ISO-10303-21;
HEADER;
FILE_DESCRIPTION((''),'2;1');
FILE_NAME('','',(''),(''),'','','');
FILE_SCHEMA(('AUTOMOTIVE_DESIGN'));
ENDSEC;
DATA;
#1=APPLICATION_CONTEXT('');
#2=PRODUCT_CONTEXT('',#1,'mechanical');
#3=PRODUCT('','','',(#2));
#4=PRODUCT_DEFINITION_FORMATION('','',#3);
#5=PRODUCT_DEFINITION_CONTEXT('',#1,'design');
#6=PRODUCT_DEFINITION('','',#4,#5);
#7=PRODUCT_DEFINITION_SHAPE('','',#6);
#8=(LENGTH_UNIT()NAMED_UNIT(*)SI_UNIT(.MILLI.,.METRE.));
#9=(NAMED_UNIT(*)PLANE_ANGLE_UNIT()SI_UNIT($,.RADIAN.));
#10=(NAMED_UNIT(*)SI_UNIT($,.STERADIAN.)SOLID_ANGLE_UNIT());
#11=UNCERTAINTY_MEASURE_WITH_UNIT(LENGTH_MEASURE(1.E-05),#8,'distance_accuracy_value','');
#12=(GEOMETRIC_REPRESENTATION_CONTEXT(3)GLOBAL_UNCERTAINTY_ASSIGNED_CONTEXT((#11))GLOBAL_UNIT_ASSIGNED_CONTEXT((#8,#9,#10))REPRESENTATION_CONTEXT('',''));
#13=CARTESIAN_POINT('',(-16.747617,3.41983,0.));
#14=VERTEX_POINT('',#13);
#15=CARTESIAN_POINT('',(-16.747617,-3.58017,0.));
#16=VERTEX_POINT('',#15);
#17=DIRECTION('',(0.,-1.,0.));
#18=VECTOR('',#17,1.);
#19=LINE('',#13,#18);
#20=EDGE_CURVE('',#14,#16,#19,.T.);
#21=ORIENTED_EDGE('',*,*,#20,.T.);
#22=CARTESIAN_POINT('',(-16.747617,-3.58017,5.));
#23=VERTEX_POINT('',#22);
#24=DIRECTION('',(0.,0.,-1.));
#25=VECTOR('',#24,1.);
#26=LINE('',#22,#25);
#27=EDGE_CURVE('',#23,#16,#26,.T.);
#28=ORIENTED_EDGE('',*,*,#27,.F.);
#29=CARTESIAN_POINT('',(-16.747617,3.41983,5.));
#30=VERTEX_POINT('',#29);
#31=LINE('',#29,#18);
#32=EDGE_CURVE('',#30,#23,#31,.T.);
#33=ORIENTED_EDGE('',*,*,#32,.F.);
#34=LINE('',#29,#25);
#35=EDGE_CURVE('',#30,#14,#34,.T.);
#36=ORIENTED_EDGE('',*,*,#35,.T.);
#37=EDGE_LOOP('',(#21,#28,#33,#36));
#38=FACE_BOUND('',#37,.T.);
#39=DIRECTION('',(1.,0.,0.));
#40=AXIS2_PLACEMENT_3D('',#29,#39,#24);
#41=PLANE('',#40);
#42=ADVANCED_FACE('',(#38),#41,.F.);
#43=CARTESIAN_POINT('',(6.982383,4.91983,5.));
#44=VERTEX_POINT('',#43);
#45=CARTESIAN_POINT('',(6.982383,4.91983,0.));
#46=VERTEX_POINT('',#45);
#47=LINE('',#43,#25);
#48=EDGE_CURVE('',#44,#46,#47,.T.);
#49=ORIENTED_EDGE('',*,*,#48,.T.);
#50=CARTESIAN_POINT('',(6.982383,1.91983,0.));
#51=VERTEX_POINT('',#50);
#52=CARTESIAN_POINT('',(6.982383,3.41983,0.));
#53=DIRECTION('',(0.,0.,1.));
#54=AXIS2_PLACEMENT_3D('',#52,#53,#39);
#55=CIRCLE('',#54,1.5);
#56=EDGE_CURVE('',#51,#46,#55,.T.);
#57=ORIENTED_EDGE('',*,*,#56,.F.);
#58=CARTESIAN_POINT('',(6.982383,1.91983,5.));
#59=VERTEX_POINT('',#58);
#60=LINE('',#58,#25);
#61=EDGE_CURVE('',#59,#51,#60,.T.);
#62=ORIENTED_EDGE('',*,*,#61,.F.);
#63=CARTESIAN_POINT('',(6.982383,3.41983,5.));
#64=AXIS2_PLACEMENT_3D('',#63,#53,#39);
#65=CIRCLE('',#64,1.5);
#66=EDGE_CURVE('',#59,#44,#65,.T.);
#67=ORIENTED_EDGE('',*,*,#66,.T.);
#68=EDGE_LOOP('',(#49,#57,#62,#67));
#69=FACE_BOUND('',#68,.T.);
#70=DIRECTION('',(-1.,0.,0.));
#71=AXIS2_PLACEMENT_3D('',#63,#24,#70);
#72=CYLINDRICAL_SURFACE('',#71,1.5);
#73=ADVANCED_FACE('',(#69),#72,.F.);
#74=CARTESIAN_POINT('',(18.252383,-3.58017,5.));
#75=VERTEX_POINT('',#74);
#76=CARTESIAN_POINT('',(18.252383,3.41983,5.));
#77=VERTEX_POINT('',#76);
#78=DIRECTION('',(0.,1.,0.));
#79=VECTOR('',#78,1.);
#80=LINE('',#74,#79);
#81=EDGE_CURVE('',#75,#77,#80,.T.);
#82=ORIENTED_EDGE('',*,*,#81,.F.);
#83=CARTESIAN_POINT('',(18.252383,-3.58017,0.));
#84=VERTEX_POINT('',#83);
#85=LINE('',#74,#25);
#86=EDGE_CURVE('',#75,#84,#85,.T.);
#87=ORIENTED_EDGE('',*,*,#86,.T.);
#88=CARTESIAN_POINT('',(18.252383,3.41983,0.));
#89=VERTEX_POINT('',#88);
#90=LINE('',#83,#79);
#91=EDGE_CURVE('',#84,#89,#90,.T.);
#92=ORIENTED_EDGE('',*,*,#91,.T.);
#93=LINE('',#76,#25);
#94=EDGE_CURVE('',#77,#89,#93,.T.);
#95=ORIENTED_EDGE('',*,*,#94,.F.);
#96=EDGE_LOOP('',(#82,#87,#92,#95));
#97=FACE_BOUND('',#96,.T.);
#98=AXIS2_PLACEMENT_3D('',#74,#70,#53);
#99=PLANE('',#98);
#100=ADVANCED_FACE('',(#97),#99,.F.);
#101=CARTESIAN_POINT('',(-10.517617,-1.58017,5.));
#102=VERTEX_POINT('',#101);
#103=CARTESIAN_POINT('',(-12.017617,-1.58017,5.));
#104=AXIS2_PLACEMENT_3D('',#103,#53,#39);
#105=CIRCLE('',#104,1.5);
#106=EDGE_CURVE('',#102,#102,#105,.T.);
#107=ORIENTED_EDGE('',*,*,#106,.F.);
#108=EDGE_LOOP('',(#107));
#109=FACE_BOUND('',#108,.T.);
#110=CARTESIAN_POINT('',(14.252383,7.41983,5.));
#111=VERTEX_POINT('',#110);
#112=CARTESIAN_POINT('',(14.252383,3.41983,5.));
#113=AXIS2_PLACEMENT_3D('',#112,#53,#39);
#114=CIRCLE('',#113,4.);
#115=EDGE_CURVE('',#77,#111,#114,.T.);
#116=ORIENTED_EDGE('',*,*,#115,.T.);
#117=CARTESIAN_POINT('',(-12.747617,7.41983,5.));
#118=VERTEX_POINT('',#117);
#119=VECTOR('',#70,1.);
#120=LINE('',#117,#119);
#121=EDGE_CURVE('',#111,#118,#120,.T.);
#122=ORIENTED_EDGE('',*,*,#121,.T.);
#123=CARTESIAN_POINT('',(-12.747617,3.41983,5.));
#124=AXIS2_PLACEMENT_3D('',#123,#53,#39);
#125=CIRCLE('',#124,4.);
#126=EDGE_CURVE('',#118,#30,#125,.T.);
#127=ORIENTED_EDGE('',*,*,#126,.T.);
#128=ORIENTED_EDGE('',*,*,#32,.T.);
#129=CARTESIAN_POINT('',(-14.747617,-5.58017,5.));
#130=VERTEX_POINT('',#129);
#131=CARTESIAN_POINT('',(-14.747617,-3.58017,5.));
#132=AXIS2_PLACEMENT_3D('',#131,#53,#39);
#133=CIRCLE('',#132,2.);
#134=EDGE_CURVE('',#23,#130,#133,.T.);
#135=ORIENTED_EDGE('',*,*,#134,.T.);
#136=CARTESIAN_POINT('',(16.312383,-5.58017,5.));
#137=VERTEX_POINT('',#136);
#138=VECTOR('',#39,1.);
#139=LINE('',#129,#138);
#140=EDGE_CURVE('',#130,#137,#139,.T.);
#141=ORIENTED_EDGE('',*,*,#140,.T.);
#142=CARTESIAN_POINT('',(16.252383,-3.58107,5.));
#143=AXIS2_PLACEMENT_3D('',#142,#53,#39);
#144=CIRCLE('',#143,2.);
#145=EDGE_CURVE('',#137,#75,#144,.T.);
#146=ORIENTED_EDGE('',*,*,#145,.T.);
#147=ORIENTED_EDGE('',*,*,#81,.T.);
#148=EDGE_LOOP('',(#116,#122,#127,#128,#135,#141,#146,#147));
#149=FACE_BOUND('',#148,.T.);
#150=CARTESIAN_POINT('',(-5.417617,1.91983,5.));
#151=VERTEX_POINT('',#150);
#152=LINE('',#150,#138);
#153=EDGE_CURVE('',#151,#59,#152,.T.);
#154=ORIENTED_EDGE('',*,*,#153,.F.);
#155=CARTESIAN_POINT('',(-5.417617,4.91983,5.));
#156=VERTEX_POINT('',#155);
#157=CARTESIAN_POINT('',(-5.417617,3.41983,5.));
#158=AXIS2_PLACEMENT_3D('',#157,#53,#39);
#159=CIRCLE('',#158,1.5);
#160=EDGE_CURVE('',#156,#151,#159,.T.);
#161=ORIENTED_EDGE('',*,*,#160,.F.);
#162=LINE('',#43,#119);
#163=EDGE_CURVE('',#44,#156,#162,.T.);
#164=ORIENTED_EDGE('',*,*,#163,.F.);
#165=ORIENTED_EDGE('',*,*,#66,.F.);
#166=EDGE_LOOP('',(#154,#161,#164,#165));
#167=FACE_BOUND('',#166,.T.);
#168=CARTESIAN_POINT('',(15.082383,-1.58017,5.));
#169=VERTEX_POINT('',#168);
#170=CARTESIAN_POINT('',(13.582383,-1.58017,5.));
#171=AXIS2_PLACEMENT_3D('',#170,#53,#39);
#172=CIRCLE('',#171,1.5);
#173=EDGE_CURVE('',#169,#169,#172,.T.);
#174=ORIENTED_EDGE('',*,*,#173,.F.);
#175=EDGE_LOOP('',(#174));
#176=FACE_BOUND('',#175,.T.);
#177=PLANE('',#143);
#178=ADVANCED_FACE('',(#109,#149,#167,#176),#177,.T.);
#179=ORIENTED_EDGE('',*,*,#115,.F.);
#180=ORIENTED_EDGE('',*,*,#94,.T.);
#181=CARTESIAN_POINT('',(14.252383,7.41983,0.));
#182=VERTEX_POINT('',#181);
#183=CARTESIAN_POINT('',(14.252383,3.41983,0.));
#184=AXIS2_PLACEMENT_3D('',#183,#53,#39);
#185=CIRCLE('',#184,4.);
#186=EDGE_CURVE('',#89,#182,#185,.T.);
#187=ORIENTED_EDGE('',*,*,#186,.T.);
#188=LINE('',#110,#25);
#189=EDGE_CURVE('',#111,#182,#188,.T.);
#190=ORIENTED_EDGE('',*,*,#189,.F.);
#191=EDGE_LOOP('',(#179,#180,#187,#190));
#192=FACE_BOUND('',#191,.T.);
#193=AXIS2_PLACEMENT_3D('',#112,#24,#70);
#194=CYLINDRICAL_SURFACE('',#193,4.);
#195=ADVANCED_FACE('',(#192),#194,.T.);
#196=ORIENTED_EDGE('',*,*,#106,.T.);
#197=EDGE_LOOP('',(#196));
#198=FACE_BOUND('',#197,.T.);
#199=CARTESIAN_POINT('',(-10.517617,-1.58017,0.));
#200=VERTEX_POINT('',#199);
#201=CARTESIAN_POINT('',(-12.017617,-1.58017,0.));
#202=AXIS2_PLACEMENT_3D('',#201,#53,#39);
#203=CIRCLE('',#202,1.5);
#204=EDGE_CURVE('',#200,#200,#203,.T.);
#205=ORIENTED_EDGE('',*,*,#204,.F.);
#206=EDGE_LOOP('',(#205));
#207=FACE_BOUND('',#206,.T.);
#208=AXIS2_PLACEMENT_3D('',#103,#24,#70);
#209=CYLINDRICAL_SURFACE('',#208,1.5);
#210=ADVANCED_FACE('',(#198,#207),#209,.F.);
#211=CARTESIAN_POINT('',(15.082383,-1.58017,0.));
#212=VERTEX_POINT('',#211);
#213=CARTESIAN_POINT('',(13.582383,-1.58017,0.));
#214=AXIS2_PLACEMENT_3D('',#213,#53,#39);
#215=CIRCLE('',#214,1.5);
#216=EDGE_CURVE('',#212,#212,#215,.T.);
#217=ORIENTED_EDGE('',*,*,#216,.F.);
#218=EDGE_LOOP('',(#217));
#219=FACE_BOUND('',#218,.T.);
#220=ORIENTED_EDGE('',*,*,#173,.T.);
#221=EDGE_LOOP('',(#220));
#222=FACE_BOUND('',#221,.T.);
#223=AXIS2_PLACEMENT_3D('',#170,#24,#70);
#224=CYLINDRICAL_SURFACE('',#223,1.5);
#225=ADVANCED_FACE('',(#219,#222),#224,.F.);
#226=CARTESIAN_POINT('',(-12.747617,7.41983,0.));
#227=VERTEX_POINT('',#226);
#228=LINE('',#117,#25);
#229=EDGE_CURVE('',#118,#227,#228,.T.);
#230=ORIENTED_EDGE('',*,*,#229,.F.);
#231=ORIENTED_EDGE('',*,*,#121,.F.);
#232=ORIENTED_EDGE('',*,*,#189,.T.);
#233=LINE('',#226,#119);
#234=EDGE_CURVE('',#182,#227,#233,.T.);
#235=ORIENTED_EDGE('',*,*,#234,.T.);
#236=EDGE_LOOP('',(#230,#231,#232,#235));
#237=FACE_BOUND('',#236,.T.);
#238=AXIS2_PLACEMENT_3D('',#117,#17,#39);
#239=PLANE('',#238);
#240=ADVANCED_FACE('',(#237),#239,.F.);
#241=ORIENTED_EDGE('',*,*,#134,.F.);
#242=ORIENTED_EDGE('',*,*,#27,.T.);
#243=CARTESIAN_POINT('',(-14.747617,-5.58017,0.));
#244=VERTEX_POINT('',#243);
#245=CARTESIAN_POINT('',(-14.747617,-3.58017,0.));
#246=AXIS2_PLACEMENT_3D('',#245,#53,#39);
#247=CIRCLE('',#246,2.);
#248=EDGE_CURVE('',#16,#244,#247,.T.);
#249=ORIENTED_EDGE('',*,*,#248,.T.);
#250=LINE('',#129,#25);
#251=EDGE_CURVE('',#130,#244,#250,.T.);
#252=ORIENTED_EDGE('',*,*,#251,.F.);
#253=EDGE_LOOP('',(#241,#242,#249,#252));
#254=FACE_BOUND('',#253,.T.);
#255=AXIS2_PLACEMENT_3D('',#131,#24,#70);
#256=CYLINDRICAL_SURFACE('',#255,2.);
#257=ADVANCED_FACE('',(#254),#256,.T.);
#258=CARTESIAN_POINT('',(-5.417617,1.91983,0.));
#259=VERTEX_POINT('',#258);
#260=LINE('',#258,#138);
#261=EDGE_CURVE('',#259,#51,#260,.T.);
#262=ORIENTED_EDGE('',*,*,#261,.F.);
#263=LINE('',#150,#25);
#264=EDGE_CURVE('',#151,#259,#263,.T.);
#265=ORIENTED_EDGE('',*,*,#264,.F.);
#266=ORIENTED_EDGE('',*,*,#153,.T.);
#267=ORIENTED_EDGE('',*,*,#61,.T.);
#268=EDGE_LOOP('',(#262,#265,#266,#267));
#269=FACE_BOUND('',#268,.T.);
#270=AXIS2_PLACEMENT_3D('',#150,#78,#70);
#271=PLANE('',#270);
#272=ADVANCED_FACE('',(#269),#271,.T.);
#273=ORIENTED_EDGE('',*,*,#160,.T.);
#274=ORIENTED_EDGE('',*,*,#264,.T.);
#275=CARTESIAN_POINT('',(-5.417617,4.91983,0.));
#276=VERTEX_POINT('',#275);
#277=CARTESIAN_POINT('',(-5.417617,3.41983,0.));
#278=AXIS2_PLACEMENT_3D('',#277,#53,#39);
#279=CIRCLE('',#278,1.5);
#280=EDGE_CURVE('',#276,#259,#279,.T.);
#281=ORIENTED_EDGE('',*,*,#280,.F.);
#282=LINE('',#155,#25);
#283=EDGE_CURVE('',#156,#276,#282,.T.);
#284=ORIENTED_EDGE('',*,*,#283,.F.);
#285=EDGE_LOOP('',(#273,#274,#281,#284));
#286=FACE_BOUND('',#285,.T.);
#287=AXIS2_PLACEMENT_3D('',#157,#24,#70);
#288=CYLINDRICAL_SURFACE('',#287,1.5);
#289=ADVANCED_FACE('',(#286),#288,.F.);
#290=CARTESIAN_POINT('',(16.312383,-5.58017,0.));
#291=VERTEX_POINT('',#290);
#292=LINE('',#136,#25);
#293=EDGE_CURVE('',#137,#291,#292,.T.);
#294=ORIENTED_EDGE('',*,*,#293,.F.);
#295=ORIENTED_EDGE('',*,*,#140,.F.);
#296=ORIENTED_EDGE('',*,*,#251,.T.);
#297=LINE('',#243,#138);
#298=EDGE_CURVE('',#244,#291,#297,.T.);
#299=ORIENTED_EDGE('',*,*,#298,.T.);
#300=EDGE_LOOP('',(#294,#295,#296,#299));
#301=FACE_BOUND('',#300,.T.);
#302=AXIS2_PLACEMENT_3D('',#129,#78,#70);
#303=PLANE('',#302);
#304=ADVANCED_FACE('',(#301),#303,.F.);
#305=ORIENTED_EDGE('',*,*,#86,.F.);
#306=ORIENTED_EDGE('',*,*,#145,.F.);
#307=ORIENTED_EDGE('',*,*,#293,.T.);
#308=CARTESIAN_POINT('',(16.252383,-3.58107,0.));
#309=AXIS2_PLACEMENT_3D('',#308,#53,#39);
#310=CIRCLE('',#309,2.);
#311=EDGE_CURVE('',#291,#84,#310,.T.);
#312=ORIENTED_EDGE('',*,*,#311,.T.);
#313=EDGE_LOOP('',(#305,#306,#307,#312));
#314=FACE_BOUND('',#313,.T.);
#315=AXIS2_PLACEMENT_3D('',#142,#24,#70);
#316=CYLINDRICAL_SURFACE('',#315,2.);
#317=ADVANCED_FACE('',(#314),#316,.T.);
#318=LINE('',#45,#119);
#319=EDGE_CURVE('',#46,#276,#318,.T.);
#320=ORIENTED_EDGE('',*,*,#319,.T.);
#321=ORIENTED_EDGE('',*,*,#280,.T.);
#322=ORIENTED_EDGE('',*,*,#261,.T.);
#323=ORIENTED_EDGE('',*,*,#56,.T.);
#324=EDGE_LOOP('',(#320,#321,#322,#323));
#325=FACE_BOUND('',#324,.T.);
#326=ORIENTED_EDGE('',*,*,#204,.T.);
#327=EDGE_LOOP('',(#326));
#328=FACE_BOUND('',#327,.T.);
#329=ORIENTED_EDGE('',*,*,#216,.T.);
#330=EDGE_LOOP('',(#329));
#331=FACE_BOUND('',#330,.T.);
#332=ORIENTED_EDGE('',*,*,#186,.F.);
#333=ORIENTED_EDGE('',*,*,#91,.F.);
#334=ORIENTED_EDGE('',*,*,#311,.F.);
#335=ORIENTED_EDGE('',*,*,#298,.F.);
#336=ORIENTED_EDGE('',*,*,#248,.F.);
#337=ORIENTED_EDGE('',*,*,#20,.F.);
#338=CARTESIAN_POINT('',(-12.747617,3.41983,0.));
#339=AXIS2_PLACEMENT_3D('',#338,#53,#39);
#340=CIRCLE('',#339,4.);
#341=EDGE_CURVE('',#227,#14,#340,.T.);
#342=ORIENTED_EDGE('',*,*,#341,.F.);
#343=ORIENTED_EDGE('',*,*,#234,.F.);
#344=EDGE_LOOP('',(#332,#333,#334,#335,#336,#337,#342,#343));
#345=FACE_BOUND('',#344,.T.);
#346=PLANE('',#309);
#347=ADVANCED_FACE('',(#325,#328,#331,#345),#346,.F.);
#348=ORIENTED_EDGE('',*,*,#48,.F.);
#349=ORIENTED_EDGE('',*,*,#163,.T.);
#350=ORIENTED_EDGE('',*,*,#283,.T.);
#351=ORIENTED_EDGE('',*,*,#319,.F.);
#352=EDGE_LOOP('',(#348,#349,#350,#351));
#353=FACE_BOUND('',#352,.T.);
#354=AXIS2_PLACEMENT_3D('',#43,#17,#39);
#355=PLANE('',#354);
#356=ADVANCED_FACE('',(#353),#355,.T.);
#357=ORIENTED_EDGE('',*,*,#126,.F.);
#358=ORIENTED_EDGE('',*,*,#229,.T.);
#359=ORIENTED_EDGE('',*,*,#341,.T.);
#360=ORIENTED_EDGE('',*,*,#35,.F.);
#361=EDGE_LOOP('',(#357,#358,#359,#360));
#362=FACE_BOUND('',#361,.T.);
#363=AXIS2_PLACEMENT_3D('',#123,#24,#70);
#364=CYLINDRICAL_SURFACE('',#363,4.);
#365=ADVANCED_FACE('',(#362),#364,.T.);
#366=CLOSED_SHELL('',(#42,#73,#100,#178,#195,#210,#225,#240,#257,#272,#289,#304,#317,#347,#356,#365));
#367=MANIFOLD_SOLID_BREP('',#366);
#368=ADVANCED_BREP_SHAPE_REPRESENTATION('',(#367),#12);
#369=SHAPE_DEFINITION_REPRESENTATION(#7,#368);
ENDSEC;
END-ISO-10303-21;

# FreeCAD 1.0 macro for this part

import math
import FreeCAD as App
import Part
import Sketcher

V = App.Vector

doc = App.newDocument("Part")
params = doc.addObject("Spreadsheet::Sheet", "Params")
for row, (alias, value) in enumerate([
    ("sketch1_diameter", "3 mm"),
    ("sketch1_radius", "4 mm"),
    ("sketch1_radius2", "2 mm"),
    ("sketch1_width", "27 mm"),
    ("sketch1_height", "7 mm"),
    ("pad1_length", "5 mm"),
], start=1):
    params.set(f"A{row}", alias)
    params.set(f"B{row}", "=" + value)
    params.setAlias(f"B{row}", alias)

body = doc.addObject("PartDesign::Body", "Body")

# Sketch on XY plane
sketch1 = doc.addObject("Sketcher::SketchObject", "Sketch")
body.addObject(sketch1)
sketch1.AttachmentSupport = (doc.XY_Plane, [""])
sketch1.MapMode = "FlatFace"
sketch1.addGeometry([
    Part.LineSegment(V(18.3, -3.6, 0), V(18.3, 3.4, 0)),  # 0
    Part.ArcOfCircle(Part.Circle(V(14.3, 3.4, 0), V(0, 0, 1), 4), math.radians(0), math.radians(90)),  # 1
    Part.LineSegment(V(14.3, 7.4, 0), V(-12.7, 7.4, 0)),  # 2
    Part.ArcOfCircle(Part.Circle(V(-12.7, 3.4, 0), V(0, 0, 1), 4), math.radians(90), math.radians(180)),  # 3
    Part.LineSegment(V(-16.7, 3.4, 0), V(-16.7, -3.6, 0)),  # 4
    Part.ArcOfCircle(Part.Circle(V(-14.7, -3.6, 0), V(0, 0, 1), 2), math.radians(180), math.radians(270)),  # 5
    Part.LineSegment(V(-14.7, -5.6, 0), V(16.3, -5.6, 0)),  # 6
    Part.ArcOfCircle(Part.Circle(V(16.3, -3.6, 0), V(0, 0, 1), 2), math.radians(-88), math.radians(0)),  # 7
    Part.Circle(V(-12, -1.6, 0), V(0, 0, 1), 1.5),  # 8
    Part.Circle(V(13.6, -1.6, 0), V(0, 0, 1), 1.5),  # 9
    Part.LineSegment(V(7, 1.9, 0), V(-5.4, 1.9, 0)),  # 10
    Part.ArcOfCircle(Part.Circle(V(-5.4, 3.4, 0), V(0, 0, 1), 1.5), math.radians(90), math.radians(270)),  # 11
    Part.LineSegment(V(-5.4, 4.9, 0), V(7, 4.9, 0)),  # 12
    Part.ArcOfCircle(Part.Circle(V(7, 3.4, 0), V(0, 0, 1), 1.5), math.radians(-90), math.radians(90)),  # 13
], False)
sketch1.addConstraint([
    Sketcher.Constraint("Tangent", 0, 2, 1, 1),
    Sketcher.Constraint("Tangent", 1, 2, 2, 1),
    Sketcher.Constraint("Tangent", 2, 2, 3, 1),
    Sketcher.Constraint("Tangent", 3, 2, 4, 1),
    Sketcher.Constraint("Tangent", 4, 2, 5, 1),
    Sketcher.Constraint("Tangent", 5, 2, 6, 1),
    Sketcher.Constraint("Coincident", 6, 2, 7, 1),
    Sketcher.Constraint("Coincident", 7, 2, 0, 1),
    Sketcher.Constraint("Tangent", 10, 2, 11, 2),
    Sketcher.Constraint("Tangent", 11, 1, 12, 1),
    Sketcher.Constraint("Tangent", 12, 2, 13, 2),
    Sketcher.Constraint("Tangent", 13, 1, 10, 1),
    Sketcher.Constraint("Vertical", 0),
    Sketcher.Constraint("Horizontal", 2),
    Sketcher.Constraint("Vertical", 4),
    Sketcher.Constraint("Horizontal", 6),
    Sketcher.Constraint("Horizontal", 10),
    Sketcher.Constraint("Horizontal", 12),
    Sketcher.Constraint("Equal", 1, 3),
    Sketcher.Constraint("Equal", 5, 7),
    Sketcher.Constraint("Equal", 8, 9),
    Sketcher.Constraint("Equal", 9, 11),
    Sketcher.Constraint("Horizontal", 8, 3, 9, 3),
    Sketcher.Constraint("Horizontal", 3, 3, 11, 3),
    Sketcher.Constraint("Horizontal", 4, 2, 7, 2),
    Sketcher.Constraint("Diameter", 8, 3.0),
    Sketcher.Constraint("Radius", 1, 4.0),
    Sketcher.Constraint("Radius", 5, 2.0),
    Sketcher.Constraint("DistanceX", 2, 2, 2, 1, 27.0),
    Sketcher.Constraint("DistanceY", 0, 1, 0, 2, 7.0),
    Sketcher.Constraint("DistanceX", 10, 2, 10, 1, 12.4),
    Sketcher.Constraint("DistanceY", 5, 3, 8, 3, 2.0),
    Sketcher.Constraint("DistanceX", 11, 3, 9, 3, 19.0),
    Sketcher.Constraint("DistanceX", 8, 3, 13, 3, 19.0),
    Sketcher.Constraint("DistanceX", 6, 1, 6, 2, 31.06),
    Sketcher.Constraint("DistanceX", 5, 3, 8, 3, 2.73),
    Sketcher.Constraint("DistanceY", -1, 1, 1, 3, 3.41983),
    Sketcher.Constraint("DistanceX", -1, 1, 1, 3, 14.252383),
])
sketch1.setExpression("Constraints[25]", "Params.sketch1_diameter")
sketch1.setExpression("Constraints[26]", "Params.sketch1_radius")
sketch1.setExpression("Constraints[27]", "Params.sketch1_radius2")
sketch1.setExpression("Constraints[28]", "Params.sketch1_width")
sketch1.setExpression("Constraints[29]", "Params.sketch1_height")
pad1 = doc.addObject("PartDesign::Pad", "Pad")
body.addObject(pad1)
pad1.Profile = sketch1
pad1.setExpression("Length", "Params.pad1_length")

doc.recompute()
